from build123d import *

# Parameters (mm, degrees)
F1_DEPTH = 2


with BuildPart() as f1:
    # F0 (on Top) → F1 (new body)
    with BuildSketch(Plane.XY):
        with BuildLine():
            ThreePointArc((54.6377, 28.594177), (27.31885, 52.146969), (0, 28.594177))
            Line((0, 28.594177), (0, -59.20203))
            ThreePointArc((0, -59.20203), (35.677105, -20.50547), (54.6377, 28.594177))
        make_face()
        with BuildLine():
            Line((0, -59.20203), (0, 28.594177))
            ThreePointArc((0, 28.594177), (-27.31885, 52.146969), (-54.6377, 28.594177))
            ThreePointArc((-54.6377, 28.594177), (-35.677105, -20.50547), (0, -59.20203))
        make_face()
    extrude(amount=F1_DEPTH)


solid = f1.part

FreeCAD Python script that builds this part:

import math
import FreeCAD as App
import Part
import Sketcher
from FreeCAD import Vector

doc = App.newDocument("Part")
body = doc.addObject("PartDesign::Body", "Body")

# Sketch on XY plane
sketch1 = body.newObject("Sketcher::SketchObject", "Sketch")
sketch1.AttachmentSupport = (doc.getObject("XY_Plane"), [""])
sketch1.MapMode = "FlatFace"
sketch1.addGeometry([
    Part.ArcOfCircle(Part.Circle(Vector(27, 25, 0), Vector(0, 0, 1), 28), math.radians(8), math.radians(172)),
    Part.ArcOfCircle(Part.Circle(Vector(-27, 25, 0), Vector(0, 0, 1), 28), math.radians(8), math.radians(172)),
    Part.ArcOfCircle(Part.Circle(Vector(84, 54, 0), Vector(0, 0, 1), 141), math.radians(-170), math.radians(-127)),
    Part.ArcOfCircle(Part.Circle(Vector(-84, 54, 0), Vector(0, 0, 1), 141), math.radians(-53), math.radians(-10)),
], False)
sketch1.addConstraint([
    Sketcher.Constraint("Coincident", 0, 2, 1, 1),
    Sketcher.Constraint("Coincident", 1, 2, 2, 1),
    Sketcher.Constraint("Coincident", 2, 2, 3, 1),
    Sketcher.Constraint("Coincident", 3, 2, 0, 1),
    Sketcher.Constraint("Equal", 0, 1),
    Sketcher.Constraint("Equal", 2, 3),
    Sketcher.Constraint("Symmetric", 0, 3, 1, 3, -2),
    Sketcher.Constraint("Symmetric", 2, 3, 3, 3, -2),
    Sketcher.Constraint("Horizontal", 0, 2, 1, 2),
    Sketcher.Constraint("Radius", 2, 140.700221),
    Sketcher.Constraint("Radius", 0, 27.619944),
    Sketcher.Constraint("DistanceY", -1, 1, 2, 3, 53.835499),
    Sketcher.Constraint("DistanceX", 1, 2, -1, 1, 54.6377),
    Sketcher.Constraint("DistanceX", 3, 3, 2, 3, 167.55977),
])
pad1 = body.newObject("PartDesign::Pad", "Pad")
pad1.Profile = sketch1
pad1.Length = 2

doc.recompute()
